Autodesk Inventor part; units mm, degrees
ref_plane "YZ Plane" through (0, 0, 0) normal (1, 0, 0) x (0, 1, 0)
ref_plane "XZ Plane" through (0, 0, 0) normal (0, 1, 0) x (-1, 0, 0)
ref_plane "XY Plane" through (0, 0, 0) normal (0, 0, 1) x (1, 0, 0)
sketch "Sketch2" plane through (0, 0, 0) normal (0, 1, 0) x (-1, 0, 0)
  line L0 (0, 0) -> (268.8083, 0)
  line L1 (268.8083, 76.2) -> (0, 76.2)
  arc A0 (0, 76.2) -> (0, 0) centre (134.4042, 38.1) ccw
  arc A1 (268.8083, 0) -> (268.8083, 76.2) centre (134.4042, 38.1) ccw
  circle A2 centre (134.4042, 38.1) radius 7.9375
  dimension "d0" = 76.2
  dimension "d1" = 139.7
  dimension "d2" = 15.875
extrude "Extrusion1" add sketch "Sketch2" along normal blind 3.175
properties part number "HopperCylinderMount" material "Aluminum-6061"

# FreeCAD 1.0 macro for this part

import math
import FreeCAD as App
import Part
import Sketcher

V = App.Vector
Q = App.Units.Quantity

doc = App.newDocument("Part")
params = doc.addObject("Spreadsheet::Sheet", "Params")
for row, (alias, value) in enumerate([
    ("sketch1_radius", "5.5 in"),
    ("sketch1_diameter", "0.625 in"),
    ("pad1_length", "0.125 in"),
], start=1):
    params.set(f"A{row}", alias)
    params.set(f"B{row}", "=" + value)
    params.setAlias(f"B{row}", alias)

body = doc.addObject("PartDesign::Body", "Body")

# Sketch on XZ plane
sketch1 = body.newObject("Sketcher::SketchObject", "Sketch")
sketch1.AttachmentSupport = (doc.getObject("XZ_Plane"), [""])
sketch1.MapMode = "FlatFace"
sketch1.addGeometry([
    Part.ArcOfCircle(Part.Circle(V(-134, 38, 0), V(0, 0, 1), 140), math.radians(-16), math.radians(16)),  # 0
    Part.LineSegment(V(0, 0, 0), V(-269, 0, 0)),  # 1
    Part.ArcOfCircle(Part.Circle(V(-134, 38, 0), V(0, 0, 1), 140), math.radians(164), math.radians(196)),  # 2
    Part.LineSegment(V(-269, 76, 0), V(0, 76, 0)),  # 3
    Part.Circle(V(-134, 38, 0), V(0, 0, 1), 8),  # 4
], False)
sketch1.addConstraint([
    Sketcher.Constraint("Coincident", 0, 1, 1, 1),
    Sketcher.Constraint("Coincident", 1, 2, 2, 2),
    Sketcher.Constraint("Coincident", 2, 1, 3, 1),
    Sketcher.Constraint("Coincident", 3, 2, 0, 2),
    Sketcher.Constraint("Horizontal", 1),
    Sketcher.Constraint("Horizontal", 3),
    Sketcher.Constraint("Coincident", 0, 1, -1, 1),
    Sketcher.Constraint("Coincident", 2, 3, 0, 3),
    Sketcher.Constraint("Coincident", 4, 3, 0, 3),
    Sketcher.Constraint("Equal", 0, 2),
    Sketcher.Constraint("PointOnObject", 3, 2, -2),
    Sketcher.Constraint("Radius", 0, Q("5.5 in")),
    Sketcher.Constraint("Diameter", 4, Q("0.625 in")),
    Sketcher.Constraint("DistanceY", -1, 1, 2, 1, Q("3 in")),
])
sketch1.setExpression("Constraints[11]", "Params.sketch1_radius")
sketch1.setExpression("Constraints[12]", "Params.sketch1_diameter")
pad1 = body.newObject("PartDesign::Pad", "Pad")
pad1.Profile = sketch1
pad1.setExpression("Length", "Params.pad1_length")
pad1.Reversed = True

doc.recompute()
